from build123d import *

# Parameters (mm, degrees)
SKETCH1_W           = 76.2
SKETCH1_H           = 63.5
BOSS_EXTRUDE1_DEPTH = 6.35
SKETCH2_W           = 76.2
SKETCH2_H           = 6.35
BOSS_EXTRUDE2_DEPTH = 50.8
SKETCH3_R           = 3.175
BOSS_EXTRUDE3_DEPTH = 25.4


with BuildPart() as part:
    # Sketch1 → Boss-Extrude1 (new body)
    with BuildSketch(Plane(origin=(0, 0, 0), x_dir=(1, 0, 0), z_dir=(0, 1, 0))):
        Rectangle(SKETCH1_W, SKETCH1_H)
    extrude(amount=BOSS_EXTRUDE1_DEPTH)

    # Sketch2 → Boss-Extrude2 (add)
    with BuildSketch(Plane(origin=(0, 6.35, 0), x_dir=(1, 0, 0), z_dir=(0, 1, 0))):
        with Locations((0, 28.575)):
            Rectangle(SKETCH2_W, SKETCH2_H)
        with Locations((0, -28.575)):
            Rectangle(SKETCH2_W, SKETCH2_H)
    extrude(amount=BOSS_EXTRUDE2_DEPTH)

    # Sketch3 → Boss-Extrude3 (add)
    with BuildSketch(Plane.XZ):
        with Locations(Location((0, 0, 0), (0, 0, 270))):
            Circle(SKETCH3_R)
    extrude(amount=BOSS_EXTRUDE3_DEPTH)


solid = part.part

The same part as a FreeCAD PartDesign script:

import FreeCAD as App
import Part
import Sketcher

V = App.Vector
Q = App.Units.Quantity

doc = App.newDocument("Part")
params = doc.addObject("Spreadsheet::Sheet", "Params")
for row, (alias, value) in enumerate([
    ("sketch1_width", "3 in"),
    ("sketch1_height", "2.5 in"),
    ("pad1_length", "0.25 in"),
    ("sketch2_width", "3 in"),
    ("sketch2_height", "0.25 in"),
    ("pad2_length", "2 in"),
    ("sketch3_diameter", "0.25 in"),
    ("pad3_length", "1 in"),
], start=1):
    params.set(f"A{row}", alias)
    params.set(f"B{row}", "=" + value)
    params.setAlias(f"B{row}", alias)

body = doc.addObject("PartDesign::Body", "Body")

# Sketch on XZ plane
sketch1 = doc.addObject("Sketcher::SketchObject", "Sketch")
body.addObject(sketch1)
sketch1.AttachmentSupport = (doc.XZ_Plane, [""])
sketch1.MapMode = "FlatFace"
sketch1.addGeometry([
    Part.LineSegment(V(-38.1, -31.75, 0), V(-38.1, 31.75, 0)),
    Part.LineSegment(V(-38.1, 31.75, 0), V(38.1, 31.75, 0)),
    Part.LineSegment(V(38.1, 31.75, 0), V(38.1, -31.75, 0)),
    Part.LineSegment(V(38.1, -31.75, 0), V(-38.1, -31.75, 0)),
], False)
sketch1.addConstraint([
    Sketcher.Constraint("Coincident", 0, 2, 1, 1),
    Sketcher.Constraint("Coincident", 1, 2, 2, 1),
    Sketcher.Constraint("Coincident", 2, 2, 3, 1),
    Sketcher.Constraint("Coincident", 3, 2, 0, 1),
    Sketcher.Constraint("Vertical", 0),
    Sketcher.Constraint("Horizontal", 1),
    Sketcher.Constraint("Vertical", 2),
    Sketcher.Constraint("Horizontal", 3),
    Sketcher.Constraint("Symmetric", 0, 2, 2, 2, -1, 1),
    Sketcher.Constraint("DistanceX", 1, 1, 1, 2, Q("3 in")),
    Sketcher.Constraint("DistanceY", 0, 1, 0, 2, Q("2.5 in")),
])
sketch1.setExpression("Constraints[9]", "Params.sketch1_width")
sketch1.setExpression("Constraints[10]", "Params.sketch1_height")
pad1 = doc.addObject("PartDesign::Pad", "Pad")
body.addObject(pad1)
pad1.Profile = sketch1
pad1.setExpression("Length", "Params.pad1_length")
pad1.Reversed = True

# Sketch on XZ plane
sketch2 = doc.addObject("Sketcher::SketchObject", "Sketch001")
body.addObject(sketch2)
sketch2.AttachmentSupport = (doc.XZ_Plane, [""])
sketch2.MapMode = "FlatFace"
sketch2.AttachmentOffset = App.Placement(V(0, 0, -0.25 * 25.4), App.Rotation())
sketch2.addGeometry([
    Part.LineSegment(V(-38.1, -31.75, 0), V(-38.1, -25.4, 0)),  # 0
    Part.LineSegment(V(-38.1, -25.4, 0), V(38.1, -25.4, 0)),  # 1
    Part.LineSegment(V(38.1, -25.4, 0), V(38.1, -31.75, 0)),  # 2
    Part.LineSegment(V(38.1, -31.75, 0), V(-38.1, -31.75, 0)),  # 3
    Part.LineSegment(V(-38.1, 25.4, 0), V(-38.1, 31.75, 0)),  # 4
    Part.LineSegment(V(-38.1, 31.75, 0), V(38.1, 31.75, 0)),  # 5
    Part.LineSegment(V(38.1, 31.75, 0), V(38.1, 25.4, 0)),  # 6
    Part.LineSegment(V(38.1, 25.4, 0), V(-38.1, 25.4, 0)),  # 7
], False)
sketch2.addConstraint([
    Sketcher.Constraint("Coincident", 0, 2, 1, 1),
    Sketcher.Constraint("Coincident", 1, 2, 2, 1),
    Sketcher.Constraint("Coincident", 2, 2, 3, 1),
    Sketcher.Constraint("Coincident", 3, 2, 0, 1),
    Sketcher.Constraint("Coincident", 4, 2, 5, 1),
    Sketcher.Constraint("Coincident", 5, 2, 6, 1),
    Sketcher.Constraint("Coincident", 6, 2, 7, 1),
    Sketcher.Constraint("Coincident", 7, 2, 4, 1),
    Sketcher.Constraint("Vertical", 0),
    Sketcher.Constraint("Horizontal", 1),
    Sketcher.Constraint("Vertical", 2),
    Sketcher.Constraint("Horizontal", 3),
    Sketcher.Constraint("Vertical", 4),
    Sketcher.Constraint("Horizontal", 5),
    Sketcher.Constraint("Vertical", 6),
    Sketcher.Constraint("Horizontal", 7),
    Sketcher.Constraint("Symmetric", 2, 2, 4, 2, -1, 1),
    Sketcher.Constraint("Symmetric", 0, 2, 6, 2, -1, 1),
    Sketcher.Constraint("Vertical", 3, 2, 4, 2),
    Sketcher.Constraint("DistanceX", 1, 1, 1, 2, Q("3 in")),
    Sketcher.Constraint("DistanceY", 0, 2, -1, 1, Q("1 in")),
    Sketcher.Constraint("DistanceY", 0, 1, 0, 2, Q("0.25 in")),
])
sketch2.setExpression("Constraints[19]", "Params.sketch2_width")
sketch2.setExpression("Constraints[21]", "Params.sketch2_height")
pad2 = doc.addObject("PartDesign::Pad", "Pad001")
body.addObject(pad2)
pad2.Profile = sketch2
pad2.setExpression("Length", "Params.pad2_length")
pad2.Reversed = True

# Sketch on XZ plane
sketch3 = doc.addObject("Sketcher::SketchObject", "Sketch002")
body.addObject(sketch3)
sketch3.AttachmentSupport = (doc.XZ_Plane, [""])
sketch3.MapMode = "FlatFace"
sketch3.addGeometry(Part.Circle(V(0, 0, 0), V(0, 0, 1), 3.175), False)
sketch3.addConstraint([
    Sketcher.Constraint("Coincident", 0, 3, -1, 1),
    Sketcher.Constraint("Diameter", 0, Q("0.25 in")),
])
sketch3.setExpression("Constraints[1]", "Params.sketch3_diameter")
pad3 = doc.addObject("PartDesign::Pad", "Pad002")
body.addObject(pad3)
pad3.Profile = sketch3
pad3.setExpression("Length", "Params.pad3_length")

doc.recompute()
